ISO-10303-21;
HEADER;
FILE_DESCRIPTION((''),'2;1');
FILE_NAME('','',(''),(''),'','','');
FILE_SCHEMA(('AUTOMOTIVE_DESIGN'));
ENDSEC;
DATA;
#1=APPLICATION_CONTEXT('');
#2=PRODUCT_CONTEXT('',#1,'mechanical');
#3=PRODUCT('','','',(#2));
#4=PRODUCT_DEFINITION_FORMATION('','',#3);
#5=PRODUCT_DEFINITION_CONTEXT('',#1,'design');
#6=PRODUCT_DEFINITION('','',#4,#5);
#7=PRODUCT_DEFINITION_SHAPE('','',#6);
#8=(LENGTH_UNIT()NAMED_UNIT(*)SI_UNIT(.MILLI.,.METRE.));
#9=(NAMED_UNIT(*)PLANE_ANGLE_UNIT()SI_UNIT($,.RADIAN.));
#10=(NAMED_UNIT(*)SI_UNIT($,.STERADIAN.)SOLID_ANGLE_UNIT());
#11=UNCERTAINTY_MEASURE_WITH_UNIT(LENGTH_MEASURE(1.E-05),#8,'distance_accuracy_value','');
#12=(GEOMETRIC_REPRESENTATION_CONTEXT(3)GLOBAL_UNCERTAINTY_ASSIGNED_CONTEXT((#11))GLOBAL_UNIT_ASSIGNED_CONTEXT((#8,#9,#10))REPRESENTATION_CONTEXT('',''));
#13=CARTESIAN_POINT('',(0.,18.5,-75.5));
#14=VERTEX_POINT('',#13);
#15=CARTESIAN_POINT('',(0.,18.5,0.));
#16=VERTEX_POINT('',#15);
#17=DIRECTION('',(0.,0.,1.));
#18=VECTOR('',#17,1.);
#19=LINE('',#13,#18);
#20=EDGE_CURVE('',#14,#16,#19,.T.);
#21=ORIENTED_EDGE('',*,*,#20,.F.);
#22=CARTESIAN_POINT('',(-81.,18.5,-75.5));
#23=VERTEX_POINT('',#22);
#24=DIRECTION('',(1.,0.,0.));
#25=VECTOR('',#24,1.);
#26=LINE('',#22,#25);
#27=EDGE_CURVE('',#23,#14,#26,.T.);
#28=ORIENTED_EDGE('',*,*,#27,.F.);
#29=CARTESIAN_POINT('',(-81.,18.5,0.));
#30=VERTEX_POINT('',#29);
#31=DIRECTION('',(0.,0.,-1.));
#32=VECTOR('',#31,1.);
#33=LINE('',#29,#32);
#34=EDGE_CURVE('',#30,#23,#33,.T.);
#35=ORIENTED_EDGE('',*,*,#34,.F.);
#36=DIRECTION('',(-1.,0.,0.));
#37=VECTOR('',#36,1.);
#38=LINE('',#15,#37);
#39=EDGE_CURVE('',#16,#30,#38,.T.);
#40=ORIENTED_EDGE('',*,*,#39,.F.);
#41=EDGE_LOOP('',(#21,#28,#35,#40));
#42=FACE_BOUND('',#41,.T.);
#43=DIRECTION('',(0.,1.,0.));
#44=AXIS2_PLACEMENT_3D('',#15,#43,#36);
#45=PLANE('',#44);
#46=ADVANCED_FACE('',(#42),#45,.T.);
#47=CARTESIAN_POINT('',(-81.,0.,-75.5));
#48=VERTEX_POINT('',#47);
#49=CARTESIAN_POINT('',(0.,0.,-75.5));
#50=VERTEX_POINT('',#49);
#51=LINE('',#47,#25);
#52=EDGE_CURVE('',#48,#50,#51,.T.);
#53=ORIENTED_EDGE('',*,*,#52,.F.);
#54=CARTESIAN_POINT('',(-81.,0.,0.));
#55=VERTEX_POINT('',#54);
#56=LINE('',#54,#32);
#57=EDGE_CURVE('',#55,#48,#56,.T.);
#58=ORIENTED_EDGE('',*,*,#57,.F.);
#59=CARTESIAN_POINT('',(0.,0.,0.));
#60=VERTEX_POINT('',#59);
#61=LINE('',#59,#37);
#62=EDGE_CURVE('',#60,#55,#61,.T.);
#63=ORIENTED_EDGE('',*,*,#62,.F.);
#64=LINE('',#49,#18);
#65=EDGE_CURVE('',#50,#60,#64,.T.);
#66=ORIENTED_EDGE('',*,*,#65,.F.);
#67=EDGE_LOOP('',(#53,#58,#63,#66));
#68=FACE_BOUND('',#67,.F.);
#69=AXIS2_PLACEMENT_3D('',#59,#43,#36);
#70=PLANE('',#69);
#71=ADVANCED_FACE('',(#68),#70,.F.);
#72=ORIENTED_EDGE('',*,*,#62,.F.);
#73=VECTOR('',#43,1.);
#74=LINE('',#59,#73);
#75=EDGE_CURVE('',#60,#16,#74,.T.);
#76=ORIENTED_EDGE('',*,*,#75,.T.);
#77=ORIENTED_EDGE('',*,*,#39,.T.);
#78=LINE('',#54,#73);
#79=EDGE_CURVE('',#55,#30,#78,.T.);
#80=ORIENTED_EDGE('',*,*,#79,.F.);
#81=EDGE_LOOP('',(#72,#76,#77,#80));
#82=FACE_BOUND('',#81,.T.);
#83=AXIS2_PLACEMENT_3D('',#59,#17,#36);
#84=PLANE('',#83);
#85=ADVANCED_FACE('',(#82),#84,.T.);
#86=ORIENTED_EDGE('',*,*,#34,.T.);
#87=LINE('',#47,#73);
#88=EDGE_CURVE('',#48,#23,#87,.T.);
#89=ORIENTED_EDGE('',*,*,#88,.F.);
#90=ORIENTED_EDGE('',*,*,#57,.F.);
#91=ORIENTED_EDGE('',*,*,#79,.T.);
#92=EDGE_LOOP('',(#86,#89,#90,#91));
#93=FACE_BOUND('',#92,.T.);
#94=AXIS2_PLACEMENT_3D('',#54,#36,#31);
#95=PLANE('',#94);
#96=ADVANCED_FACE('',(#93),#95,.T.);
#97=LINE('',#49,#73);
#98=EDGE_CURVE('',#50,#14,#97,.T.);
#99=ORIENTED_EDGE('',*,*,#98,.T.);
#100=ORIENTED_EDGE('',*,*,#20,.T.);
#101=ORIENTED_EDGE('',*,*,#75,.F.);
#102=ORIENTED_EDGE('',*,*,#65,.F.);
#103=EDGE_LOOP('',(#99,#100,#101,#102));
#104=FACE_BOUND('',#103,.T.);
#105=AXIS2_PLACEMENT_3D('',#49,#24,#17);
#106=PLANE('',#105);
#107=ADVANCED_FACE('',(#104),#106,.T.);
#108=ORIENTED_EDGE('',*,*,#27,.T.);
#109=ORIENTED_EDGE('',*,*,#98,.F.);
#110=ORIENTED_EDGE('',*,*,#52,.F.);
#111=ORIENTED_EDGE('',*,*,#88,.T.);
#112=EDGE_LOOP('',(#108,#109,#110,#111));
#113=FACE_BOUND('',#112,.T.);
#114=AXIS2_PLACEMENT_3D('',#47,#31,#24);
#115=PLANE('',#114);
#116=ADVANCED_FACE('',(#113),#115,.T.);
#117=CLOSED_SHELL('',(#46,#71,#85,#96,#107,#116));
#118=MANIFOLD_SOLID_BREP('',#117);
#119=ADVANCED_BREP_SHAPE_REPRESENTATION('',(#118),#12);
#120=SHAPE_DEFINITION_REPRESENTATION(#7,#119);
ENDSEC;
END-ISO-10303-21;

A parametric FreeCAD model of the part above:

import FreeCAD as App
import Part
import Sketcher
Q = App.Units.Quantity


def add_polygon(sketch, points):
    """Adds a closed chain of lines whose ends are joined by coincident constraints."""
    first, n = sketch.GeometryCount, len(points)
    for a, b in zip(points, points[1:] + points[:1]):
        sketch.addGeometry(Part.LineSegment(App.Vector(*a, 0), App.Vector(*b, 0)), False)
    for i in range(n):
        sketch.addConstraint(Sketcher.Constraint("Coincident", first + i, 2, first + (i + 1) % n, 1))

doc = App.newDocument("Part")
body = doc.addObject("PartDesign::Body", "Body")

sketch1 = body.newObject("Sketcher::SketchObject", "Sketch")
sketch1.AttachmentSupport = (doc.getObject("XZ_Plane"), [""])
sketch1.MapMode = "FlatFace"
add_polygon(sketch1, [(-81, 0), (0, 0), (0, -75.5), (-81, -75.5)])
sketch1.addConstraint([
    Sketcher.Constraint("Horizontal", 0),
    Sketcher.Constraint("Vertical", 1),
    Sketcher.Constraint("Horizontal", 2),
    Sketcher.Constraint("Vertical", 3),
    Sketcher.Constraint("Coincident", 0, 2, -1, 1),
    Sketcher.Constraint("DistanceX", 0, 1, 0, 2, Q("81 mm")),
    Sketcher.Constraint("DistanceY", 1, 2, 1, 1, Q("75.5 mm")),
])
pad1 = body.newObject("PartDesign::Pad", "Pad")
pad1.Profile = sketch1
pad1.Length = 18.5
pad1.Reversed = True

doc.recompute()
